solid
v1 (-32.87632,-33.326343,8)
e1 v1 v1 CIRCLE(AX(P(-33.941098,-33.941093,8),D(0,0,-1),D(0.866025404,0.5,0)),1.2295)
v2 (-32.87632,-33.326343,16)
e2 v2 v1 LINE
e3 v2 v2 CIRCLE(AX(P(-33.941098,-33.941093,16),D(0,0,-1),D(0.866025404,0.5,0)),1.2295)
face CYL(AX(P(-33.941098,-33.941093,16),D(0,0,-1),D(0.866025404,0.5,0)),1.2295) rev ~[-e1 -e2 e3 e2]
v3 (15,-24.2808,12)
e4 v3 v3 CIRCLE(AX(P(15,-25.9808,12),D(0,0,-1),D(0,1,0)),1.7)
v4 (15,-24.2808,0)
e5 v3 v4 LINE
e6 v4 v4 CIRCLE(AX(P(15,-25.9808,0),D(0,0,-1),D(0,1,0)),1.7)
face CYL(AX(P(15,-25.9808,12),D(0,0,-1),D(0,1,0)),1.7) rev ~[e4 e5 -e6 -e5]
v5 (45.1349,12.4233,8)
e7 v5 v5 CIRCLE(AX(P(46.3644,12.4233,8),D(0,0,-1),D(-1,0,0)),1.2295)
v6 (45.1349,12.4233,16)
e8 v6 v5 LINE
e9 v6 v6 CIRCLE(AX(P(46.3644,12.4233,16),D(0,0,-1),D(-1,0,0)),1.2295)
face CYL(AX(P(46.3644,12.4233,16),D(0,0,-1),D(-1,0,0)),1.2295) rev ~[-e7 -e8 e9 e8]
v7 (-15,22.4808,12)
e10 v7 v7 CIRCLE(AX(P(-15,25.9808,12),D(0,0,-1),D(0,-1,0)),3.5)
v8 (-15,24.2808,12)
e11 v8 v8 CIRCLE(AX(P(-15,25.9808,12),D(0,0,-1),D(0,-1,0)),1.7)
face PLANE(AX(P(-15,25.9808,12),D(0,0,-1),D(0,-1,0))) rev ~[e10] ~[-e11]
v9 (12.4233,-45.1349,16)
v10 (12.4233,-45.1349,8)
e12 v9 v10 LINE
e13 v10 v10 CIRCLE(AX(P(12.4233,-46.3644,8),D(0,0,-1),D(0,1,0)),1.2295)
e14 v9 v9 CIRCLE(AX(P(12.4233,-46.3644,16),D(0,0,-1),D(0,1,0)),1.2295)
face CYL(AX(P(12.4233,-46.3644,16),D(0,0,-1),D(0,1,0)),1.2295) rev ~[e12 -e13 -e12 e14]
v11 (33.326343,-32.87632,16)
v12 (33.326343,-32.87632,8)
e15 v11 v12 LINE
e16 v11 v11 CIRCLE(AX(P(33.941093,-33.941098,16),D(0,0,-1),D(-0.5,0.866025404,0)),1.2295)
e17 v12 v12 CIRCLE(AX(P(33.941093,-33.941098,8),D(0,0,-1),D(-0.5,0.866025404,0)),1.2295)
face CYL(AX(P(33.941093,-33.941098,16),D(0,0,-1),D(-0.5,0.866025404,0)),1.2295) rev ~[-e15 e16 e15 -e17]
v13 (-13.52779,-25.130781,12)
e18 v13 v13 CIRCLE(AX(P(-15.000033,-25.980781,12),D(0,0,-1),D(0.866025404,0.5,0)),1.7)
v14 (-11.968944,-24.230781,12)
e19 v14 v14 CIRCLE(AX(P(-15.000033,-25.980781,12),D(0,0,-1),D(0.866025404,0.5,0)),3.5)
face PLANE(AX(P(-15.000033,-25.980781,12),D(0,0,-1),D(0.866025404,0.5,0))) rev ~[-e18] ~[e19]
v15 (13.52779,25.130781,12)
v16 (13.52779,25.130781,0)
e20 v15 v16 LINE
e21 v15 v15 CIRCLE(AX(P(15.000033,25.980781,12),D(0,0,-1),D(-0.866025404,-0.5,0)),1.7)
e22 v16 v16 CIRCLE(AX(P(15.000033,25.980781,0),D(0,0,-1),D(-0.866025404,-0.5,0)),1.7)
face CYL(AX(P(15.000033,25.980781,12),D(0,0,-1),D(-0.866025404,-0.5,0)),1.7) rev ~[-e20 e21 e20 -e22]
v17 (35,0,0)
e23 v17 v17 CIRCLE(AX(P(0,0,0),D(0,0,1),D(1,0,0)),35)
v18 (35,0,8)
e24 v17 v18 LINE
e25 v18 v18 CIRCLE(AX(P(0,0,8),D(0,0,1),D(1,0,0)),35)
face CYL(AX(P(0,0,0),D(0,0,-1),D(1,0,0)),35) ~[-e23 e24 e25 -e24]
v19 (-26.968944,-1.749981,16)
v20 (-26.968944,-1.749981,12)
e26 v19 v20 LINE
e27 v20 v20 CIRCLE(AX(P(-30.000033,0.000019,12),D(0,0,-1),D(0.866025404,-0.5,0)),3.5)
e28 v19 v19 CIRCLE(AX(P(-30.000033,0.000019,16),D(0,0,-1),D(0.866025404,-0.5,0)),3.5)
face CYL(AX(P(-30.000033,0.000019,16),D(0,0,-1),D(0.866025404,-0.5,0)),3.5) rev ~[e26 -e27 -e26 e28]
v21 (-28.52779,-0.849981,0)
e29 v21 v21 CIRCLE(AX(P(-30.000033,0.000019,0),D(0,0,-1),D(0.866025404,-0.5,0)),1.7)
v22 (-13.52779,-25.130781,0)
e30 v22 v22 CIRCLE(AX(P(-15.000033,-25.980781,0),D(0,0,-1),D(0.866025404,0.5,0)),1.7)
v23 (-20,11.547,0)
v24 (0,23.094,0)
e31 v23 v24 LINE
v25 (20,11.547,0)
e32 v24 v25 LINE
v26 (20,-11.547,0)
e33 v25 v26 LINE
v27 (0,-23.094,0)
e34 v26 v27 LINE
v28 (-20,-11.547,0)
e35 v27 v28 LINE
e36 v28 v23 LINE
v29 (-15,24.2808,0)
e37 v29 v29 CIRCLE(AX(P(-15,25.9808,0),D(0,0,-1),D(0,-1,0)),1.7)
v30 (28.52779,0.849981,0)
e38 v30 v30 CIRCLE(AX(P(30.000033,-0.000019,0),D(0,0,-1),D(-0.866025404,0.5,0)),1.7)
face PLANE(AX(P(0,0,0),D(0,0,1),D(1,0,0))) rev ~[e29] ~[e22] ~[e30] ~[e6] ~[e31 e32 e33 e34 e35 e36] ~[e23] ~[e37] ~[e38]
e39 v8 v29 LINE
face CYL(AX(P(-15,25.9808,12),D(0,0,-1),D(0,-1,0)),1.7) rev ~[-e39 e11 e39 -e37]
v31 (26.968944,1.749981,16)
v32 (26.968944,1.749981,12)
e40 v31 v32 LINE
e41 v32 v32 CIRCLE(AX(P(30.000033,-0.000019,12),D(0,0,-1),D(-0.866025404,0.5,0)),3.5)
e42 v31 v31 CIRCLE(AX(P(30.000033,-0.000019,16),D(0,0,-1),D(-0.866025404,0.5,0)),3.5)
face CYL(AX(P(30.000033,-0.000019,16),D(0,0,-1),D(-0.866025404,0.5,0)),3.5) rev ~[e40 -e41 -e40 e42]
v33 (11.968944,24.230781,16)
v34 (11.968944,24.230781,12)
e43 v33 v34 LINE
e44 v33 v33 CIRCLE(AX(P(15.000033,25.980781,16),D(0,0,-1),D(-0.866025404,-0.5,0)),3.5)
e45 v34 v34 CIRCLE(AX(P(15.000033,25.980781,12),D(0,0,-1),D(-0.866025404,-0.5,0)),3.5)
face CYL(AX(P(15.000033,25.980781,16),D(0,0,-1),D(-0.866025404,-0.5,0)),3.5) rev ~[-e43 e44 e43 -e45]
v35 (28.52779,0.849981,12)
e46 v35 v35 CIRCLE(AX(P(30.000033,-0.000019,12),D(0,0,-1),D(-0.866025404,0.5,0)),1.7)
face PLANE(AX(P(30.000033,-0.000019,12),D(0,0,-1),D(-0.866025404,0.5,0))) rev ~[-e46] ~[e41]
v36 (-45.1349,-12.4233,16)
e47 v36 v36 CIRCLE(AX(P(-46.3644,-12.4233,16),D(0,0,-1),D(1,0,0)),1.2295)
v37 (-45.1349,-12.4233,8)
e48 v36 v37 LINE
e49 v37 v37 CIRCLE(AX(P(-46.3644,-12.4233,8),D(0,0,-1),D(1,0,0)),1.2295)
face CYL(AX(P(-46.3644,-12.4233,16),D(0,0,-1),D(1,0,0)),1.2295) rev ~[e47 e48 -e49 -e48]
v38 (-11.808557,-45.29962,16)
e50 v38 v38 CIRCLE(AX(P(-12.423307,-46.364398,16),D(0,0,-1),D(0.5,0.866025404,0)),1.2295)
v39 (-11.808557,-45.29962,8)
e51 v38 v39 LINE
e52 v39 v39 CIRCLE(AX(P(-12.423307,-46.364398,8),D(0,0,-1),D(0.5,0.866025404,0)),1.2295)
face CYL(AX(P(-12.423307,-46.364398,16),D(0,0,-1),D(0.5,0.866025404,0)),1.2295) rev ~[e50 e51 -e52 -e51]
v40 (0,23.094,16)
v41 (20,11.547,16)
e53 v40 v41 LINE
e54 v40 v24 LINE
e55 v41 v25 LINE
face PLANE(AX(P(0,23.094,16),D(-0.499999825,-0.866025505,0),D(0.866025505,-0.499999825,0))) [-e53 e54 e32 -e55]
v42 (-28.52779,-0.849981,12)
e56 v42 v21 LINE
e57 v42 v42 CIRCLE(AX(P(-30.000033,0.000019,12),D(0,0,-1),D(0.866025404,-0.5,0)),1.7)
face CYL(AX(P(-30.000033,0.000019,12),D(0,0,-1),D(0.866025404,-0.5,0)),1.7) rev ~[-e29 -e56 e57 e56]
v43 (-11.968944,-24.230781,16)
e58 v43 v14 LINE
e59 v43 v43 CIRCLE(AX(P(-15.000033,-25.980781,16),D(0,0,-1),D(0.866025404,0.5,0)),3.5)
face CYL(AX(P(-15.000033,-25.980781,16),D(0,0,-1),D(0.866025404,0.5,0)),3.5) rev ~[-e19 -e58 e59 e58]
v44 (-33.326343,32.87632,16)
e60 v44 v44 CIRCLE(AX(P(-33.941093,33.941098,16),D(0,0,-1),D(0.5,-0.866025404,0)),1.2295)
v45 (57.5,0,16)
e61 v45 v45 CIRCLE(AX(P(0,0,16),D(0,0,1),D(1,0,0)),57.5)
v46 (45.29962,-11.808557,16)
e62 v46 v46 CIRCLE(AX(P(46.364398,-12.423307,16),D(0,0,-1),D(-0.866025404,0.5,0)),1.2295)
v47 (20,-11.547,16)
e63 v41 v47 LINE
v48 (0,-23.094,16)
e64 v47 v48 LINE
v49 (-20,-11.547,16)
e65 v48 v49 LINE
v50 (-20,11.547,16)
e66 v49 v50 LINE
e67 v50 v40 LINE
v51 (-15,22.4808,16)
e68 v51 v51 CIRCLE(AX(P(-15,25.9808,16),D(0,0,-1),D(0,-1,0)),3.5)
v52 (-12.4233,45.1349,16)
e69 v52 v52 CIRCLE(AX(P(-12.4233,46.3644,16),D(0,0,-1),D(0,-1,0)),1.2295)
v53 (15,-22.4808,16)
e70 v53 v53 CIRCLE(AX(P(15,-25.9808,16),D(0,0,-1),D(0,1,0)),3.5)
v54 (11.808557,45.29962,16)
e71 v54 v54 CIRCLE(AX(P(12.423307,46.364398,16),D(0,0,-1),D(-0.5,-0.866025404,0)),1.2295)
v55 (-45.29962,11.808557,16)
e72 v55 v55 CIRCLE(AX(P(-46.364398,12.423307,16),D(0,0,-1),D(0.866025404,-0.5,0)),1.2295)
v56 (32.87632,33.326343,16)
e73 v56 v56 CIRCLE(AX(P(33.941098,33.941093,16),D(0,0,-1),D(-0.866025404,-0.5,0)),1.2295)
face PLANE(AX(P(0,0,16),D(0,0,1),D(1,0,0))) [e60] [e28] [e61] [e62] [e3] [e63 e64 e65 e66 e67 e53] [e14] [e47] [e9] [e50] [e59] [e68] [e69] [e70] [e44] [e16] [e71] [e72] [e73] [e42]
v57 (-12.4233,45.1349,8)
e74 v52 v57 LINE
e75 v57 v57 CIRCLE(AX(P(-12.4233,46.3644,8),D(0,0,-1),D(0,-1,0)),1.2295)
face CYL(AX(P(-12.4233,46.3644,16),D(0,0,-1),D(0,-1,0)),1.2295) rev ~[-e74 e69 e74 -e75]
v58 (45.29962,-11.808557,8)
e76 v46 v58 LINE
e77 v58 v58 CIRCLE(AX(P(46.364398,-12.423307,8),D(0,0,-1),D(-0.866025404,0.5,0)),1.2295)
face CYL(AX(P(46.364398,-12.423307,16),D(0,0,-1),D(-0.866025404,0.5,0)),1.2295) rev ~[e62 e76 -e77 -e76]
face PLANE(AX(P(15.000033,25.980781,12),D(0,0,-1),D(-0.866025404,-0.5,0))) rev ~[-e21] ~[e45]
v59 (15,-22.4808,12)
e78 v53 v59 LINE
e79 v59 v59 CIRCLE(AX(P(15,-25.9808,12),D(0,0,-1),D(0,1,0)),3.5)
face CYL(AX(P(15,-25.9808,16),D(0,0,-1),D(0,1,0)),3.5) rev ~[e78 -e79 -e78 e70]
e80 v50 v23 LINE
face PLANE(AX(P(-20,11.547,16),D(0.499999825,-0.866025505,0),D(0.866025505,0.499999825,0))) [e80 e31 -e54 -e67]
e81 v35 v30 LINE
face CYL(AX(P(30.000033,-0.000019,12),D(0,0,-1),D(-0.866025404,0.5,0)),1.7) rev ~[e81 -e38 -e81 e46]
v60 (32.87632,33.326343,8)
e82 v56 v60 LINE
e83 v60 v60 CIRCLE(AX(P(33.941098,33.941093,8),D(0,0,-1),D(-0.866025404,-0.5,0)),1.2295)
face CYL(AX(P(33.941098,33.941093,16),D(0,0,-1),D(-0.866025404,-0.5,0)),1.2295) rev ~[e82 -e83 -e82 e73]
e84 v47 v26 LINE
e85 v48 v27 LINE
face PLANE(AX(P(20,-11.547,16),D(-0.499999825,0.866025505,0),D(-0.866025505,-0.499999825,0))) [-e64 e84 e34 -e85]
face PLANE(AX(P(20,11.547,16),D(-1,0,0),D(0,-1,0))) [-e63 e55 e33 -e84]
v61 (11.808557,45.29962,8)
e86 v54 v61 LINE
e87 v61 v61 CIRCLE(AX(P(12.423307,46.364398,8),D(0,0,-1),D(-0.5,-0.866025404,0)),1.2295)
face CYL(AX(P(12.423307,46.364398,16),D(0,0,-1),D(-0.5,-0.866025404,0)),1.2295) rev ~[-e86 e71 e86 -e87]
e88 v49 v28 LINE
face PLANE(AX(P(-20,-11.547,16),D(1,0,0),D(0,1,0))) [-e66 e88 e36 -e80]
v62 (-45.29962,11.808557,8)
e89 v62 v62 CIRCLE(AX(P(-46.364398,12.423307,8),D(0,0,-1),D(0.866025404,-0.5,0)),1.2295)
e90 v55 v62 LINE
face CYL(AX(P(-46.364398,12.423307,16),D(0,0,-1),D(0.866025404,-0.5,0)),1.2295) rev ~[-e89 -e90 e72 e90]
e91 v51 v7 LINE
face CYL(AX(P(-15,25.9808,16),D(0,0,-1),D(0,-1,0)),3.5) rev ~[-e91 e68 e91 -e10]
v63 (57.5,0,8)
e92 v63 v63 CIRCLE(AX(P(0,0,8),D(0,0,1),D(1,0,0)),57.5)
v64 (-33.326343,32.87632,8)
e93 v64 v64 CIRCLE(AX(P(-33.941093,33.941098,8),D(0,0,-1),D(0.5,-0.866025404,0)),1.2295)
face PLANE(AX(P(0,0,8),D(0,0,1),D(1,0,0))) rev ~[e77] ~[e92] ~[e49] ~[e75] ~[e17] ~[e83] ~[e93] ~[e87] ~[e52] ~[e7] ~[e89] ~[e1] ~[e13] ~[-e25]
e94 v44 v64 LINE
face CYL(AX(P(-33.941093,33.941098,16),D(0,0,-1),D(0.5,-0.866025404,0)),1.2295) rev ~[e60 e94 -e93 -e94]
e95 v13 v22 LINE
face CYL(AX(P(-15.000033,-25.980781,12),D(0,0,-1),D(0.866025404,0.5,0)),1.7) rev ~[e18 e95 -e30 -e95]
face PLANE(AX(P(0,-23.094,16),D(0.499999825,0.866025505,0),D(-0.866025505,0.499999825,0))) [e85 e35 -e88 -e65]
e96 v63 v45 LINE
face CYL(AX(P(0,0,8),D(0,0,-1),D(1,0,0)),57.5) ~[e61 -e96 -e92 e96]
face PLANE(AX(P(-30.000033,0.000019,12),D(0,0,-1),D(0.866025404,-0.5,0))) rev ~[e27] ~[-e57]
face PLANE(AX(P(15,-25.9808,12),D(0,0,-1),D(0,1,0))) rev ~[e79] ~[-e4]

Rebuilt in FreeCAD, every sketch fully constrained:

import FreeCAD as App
import Part
import Sketcher
from FreeCAD import Vector
Q = App.Units.Quantity

doc = App.newDocument("Part")
body = doc.addObject("PartDesign::Body", "Body")

# Sketch on XY plane
sketch1 = body.newObject("Sketcher::SketchObject", "Sketch")
sketch1.AttachmentSupport = (doc.getObject("XY_Plane"), [""])
sketch1.MapMode = "FlatFace"
sketch1.addGeometry(Part.Circle(Vector(0, 0, 0), Vector(0, 0, 1), 35), False)
sketch1.addConstraint(Sketcher.Constraint("Coincident", 0, 3, -1, 1))
sketch1.addConstraint(Sketcher.Constraint("Diameter", 0, 70.0))
pad1 = body.newObject("PartDesign::Pad", "Pad")
pad1.Profile = sketch1
pad1.Length = 8

# Sketch on XY plane
sketch2 = body.newObject("Sketcher::SketchObject", "Sketch001")
sketch2.AttachmentSupport = (doc.getObject("XY_Plane"), [""])
sketch2.MapMode = "FlatFace"
sketch2.AttachmentOffset = App.Placement(Vector(0, 0, 8), App.Rotation())
sketch2.addGeometry(Part.Circle(Vector(0, 0, 0), Vector(0, 0, 1), 58), False)
sketch2.addConstraint(Sketcher.Constraint("Coincident", 0, 3, -1, 1))
sketch2.addConstraint(Sketcher.Constraint("Diameter", 0, 115.0))
pad2 = body.newObject("PartDesign::Pad", "Pad001")
pad2.Profile = sketch2
pad2.Length = 8

# Sketch on XY plane
sketch3 = body.newObject("Sketcher::SketchObject", "Sketch002")
sketch3.AttachmentSupport = (doc.getObject("XY_Plane"), [""])
sketch3.MapMode = "FlatFace"
sketch3.AttachmentOffset = App.Placement(Vector(0, 0, 16), App.Rotation())
sketch3.addGeometry(Part.Circle(Vector(-15, 26, 0), Vector(0, 0, 1), 1.7), False)
sketch3.addConstraint(Sketcher.Constraint("Diameter", 0, 3.4))
sketch3.addConstraint(Sketcher.Constraint("DistanceX", 0, 3, -1, 1, 15.0))
sketch3.addConstraint(Sketcher.Constraint("DistanceY", -1, 1, 0, 3, 25.9808))
doc.recompute()
hole = body.newObject("PartDesign::Hole", "Hole")
hole.Profile = sketch3
hole.ThreadType = "None"
hole.Diameter = 3.4
hole.DepthType = "ThroughAll"
hole.HoleCutType = "Counterbore"
hole.HoleCutDiameter = 7
hole.HoleCutDepth = 4
doc.recompute()

polarpattern = body.newObject("PartDesign::PolarPattern", "PolarPattern")
polarpattern.Originals = [hole]
polarpattern.Axis = (doc.getObject("Z_Axis"), [""])
polarpattern.Angle = 360
polarpattern.Occurrences = 6
body.Tip = polarpattern

# Sketch on XY plane
sketch4 = body.newObject("Sketcher::SketchObject", "Sketch003")
sketch4.AttachmentSupport = (doc.getObject("XY_Plane"), [""])
sketch4.MapMode = "FlatFace"
sketch4.AttachmentOffset = App.Placement(Vector(0, 0, 16), App.Rotation())
sketch4.addGeometry(Part.Circle(Vector(-12.4, 46.4, 0), Vector(0, 0, 1), 1.2), False)
sketch4.addConstraint(Sketcher.Constraint("Diameter", 0, 2.459))
sketch4.addConstraint(Sketcher.Constraint("DistanceX", 0, 3, -1, 1, 12.4233))
sketch4.addConstraint(Sketcher.Constraint("DistanceY", -1, 1, 0, 3, 46.3644))
doc.recompute()
hole2 = body.newObject("PartDesign::Hole", "Hole001")
hole2.Profile = sketch4
hole2.ThreadType = "None"
hole2.Diameter = 2.459
hole2.DepthType = "ThroughAll"
doc.recompute()

polarpattern2 = body.newObject("PartDesign::PolarPattern", "PolarPattern001")
polarpattern2.Originals = [hole2]
polarpattern2.Axis = (doc.getObject("Z_Axis"), [""])
polarpattern2.Angle = 360
polarpattern2.Occurrences = 12
body.Tip = polarpattern2

# Sketch on XY plane
sketch5 = body.newObject("Sketcher::SketchObject", "Sketch004")
sketch5.AttachmentSupport = (doc.getObject("XY_Plane"), [""])
sketch5.MapMode = "FlatFace"
sketch5.AttachmentOffset = App.Placement(Vector(0, 0, 16), App.Rotation())
sketch5.addGeometry(Part.LineSegment(Vector(20, 12, 0), Vector(0, 23, 0)), False)
sketch5.addGeometry(Part.LineSegment(Vector(0, 23, 0), Vector(-20, 12, 0)), False)
sketch5.addGeometry(Part.LineSegment(Vector(-20, 12, 0), Vector(-20, -12, 0)), False)
sketch5.addGeometry(Part.LineSegment(Vector(-20, -12, 0), Vector(0, -23, 0)), False)
sketch5.addGeometry(Part.LineSegment(Vector(0, -23, 0), Vector(20, -12, 0)), False)
sketch5.addGeometry(Part.LineSegment(Vector(20, -12, 0), Vector(20, 12, 0)), False)
sketch5.addConstraint(Sketcher.Constraint("Coincident", 0, 2, 1, 1))
sketch5.addConstraint(Sketcher.Constraint("Coincident", 1, 2, 2, 1))
sketch5.addConstraint(Sketcher.Constraint("Coincident", 2, 2, 3, 1))
sketch5.addConstraint(Sketcher.Constraint("Coincident", 3, 2, 4, 1))
sketch5.addConstraint(Sketcher.Constraint("Coincident", 4, 2, 5, 1))
sketch5.addConstraint(Sketcher.Constraint("Coincident", 5, 2, 0, 1))
sketch5.addConstraint(Sketcher.Constraint("Vertical", 2))
sketch5.addConstraint(Sketcher.Constraint("Vertical", 5))
sketch5.addConstraint(Sketcher.Constraint("Symmetric", 0, 2, 3, 2, -1, 1))
sketch5.addConstraint(Sketcher.Constraint("Symmetric", 1, 2, 4, 2, -1, 1))
sketch5.addConstraint(Sketcher.Constraint("PointOnObject", 0, 2, -2))
sketch5.addConstraint(Sketcher.Constraint("Parallel", 0, 3))
sketch5.addConstraint(Sketcher.Constraint("Horizontal", 2, 2, 4, 2))
sketch5.addConstraint(Sketcher.Constraint("DistanceX", 2, 2, 4, 2, 40.0))
sketch5.addConstraint(Sketcher.Constraint("Angle", 0, Q("150 deg")))
sketch5.addConstraint(Sketcher.Constraint("DistanceY", 2, 2, 2, 1, 23.094))
pocket1 = body.newObject("PartDesign::Pocket", "Pocket")
pocket1.Profile = sketch5
pocket1.Type = "ThroughAll"

doc.recompute()
